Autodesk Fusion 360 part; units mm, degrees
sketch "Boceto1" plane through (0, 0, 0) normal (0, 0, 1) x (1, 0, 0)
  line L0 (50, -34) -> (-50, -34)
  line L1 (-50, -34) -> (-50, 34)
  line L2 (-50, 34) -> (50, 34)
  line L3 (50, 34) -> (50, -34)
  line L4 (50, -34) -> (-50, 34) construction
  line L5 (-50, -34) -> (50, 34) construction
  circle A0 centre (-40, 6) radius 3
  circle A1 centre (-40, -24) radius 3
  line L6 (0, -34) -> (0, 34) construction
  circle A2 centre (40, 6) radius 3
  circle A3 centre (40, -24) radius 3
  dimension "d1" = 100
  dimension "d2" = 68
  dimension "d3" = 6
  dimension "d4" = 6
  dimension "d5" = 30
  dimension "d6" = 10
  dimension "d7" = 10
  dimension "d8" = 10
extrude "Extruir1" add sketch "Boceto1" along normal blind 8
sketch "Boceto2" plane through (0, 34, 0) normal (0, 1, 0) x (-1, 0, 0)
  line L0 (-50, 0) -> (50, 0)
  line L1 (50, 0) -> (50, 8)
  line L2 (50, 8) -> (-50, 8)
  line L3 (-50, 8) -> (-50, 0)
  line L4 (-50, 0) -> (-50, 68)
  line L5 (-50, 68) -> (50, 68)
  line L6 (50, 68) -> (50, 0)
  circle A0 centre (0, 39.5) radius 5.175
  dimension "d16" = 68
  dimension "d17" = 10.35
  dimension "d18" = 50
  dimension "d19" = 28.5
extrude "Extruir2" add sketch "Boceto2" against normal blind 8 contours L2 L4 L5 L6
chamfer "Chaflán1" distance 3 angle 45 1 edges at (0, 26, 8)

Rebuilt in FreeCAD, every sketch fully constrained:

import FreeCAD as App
import Part
import Sketcher


def edges_at(feature, points):
    """Names of the edges that pass closest to the given points."""
    edges = feature.Shape.Edges
    near = lambda p: min(range(len(edges)), key=lambda i: edges[i].distToShape(Part.Vertex(*p))[0])
    return sorted({f"Edge{near(p) + 1}" for p in points})


def add_polygon(sketch, points):
    """Adds a closed chain of lines whose ends are joined by coincident constraints."""
    first, n = sketch.GeometryCount, len(points)
    for a, b in zip(points, points[1:] + points[:1]):
        sketch.addGeometry(Part.LineSegment(App.Vector(*a, 0), App.Vector(*b, 0)), False)
    for i in range(n):
        sketch.addConstraint(Sketcher.Constraint("Coincident", first + i, 2, first + (i + 1) % n, 1))

doc = App.newDocument("Part")
body = doc.addObject("PartDesign::Body", "Body")

sketch1 = body.newObject("Sketcher::SketchObject", "Sketch")
sketch1.AttachmentSupport = (doc.getObject("XY_Plane"), [""])
sketch1.MapMode = "FlatFace"
add_polygon(sketch1, [(-50, -34), (50, -34), (50, 34), (-50, 34)])
sketch1.addGeometry(Part.Circle(App.Vector(-40, -24, 0), App.Vector(0, 0, 1), 3), False)
sketch1.addGeometry(Part.Circle(App.Vector(40, -24, 0), App.Vector(0, 0, 1), 3), False)
sketch1.addGeometry(Part.Circle(App.Vector(-40, 6, 0), App.Vector(0, 0, 1), 3), False)
sketch1.addGeometry(Part.Circle(App.Vector(40, 6, 0), App.Vector(0, 0, 1), 3), False)
sketch1.addConstraint(Sketcher.Constraint("Horizontal", 0))
sketch1.addConstraint(Sketcher.Constraint("Vertical", 1))
sketch1.addConstraint(Sketcher.Constraint("Horizontal", 2))
sketch1.addConstraint(Sketcher.Constraint("Vertical", 3))
sketch1.addConstraint(Sketcher.Constraint("Equal", 4, 5))
sketch1.addConstraint(Sketcher.Constraint("Equal", 5, 6))
sketch1.addConstraint(Sketcher.Constraint("Equal", 6, 7))
sketch1.addConstraint(Sketcher.Constraint("Symmetric", 0, 2, 2, 2, -1, 1))
sketch1.addConstraint(Sketcher.Constraint("Symmetric", 4, 3, 5, 3, -2))
sketch1.addConstraint(Sketcher.Constraint("Symmetric", 6, 3, 7, 3, -2))
sketch1.addConstraint(Sketcher.Constraint("Vertical", 4, 3, 6, 3))
sketch1.addConstraint(Sketcher.Constraint("Diameter", 4, 6.0))
sketch1.addConstraint(Sketcher.Constraint("DistanceX", 0, 1, 0, 2, 100.0))
sketch1.addConstraint(Sketcher.Constraint("DistanceY", 1, 1, 1, 2, 68.0))
sketch1.addConstraint(Sketcher.Constraint("DistanceY", -1, 1, 6, 3, 6.0))
sketch1.addConstraint(Sketcher.Constraint("DistanceY", 4, 3, 6, 3, 30.0))
sketch1.addConstraint(Sketcher.Constraint("DistanceX", 5, 3, 0, 2, 10.0))
pad1 = body.newObject("PartDesign::Pad", "Pad")
pad1.Profile = sketch1
pad1.Length = 8

sketch2 = body.newObject("Sketcher::SketchObject", "Sketch001")
sketch2.AttachmentSupport = (doc.getObject("XZ_Plane"), [""])
sketch2.MapMode = "FlatFace"
sketch2.AttachmentOffset = App.Placement(App.Vector(0, 0, -34), App.Rotation())
add_polygon(sketch2, [(50, 68), (50, 8), (-50, 8), (-50, 68)])
sketch2.addGeometry(Part.Circle(App.Vector(0, 39.5, 0), App.Vector(0, 0, 1), 5.175), False)
sketch2.addConstraint(Sketcher.Constraint("Vertical", 0))
sketch2.addConstraint(Sketcher.Constraint("Horizontal", 1))
sketch2.addConstraint(Sketcher.Constraint("Vertical", 2))
sketch2.addConstraint(Sketcher.Constraint("Horizontal", 3))
sketch2.addConstraint(Sketcher.Constraint("PointOnObject", 4, 3, -2))
sketch2.addConstraint(Sketcher.Constraint("Diameter", 4, 10.35))
sketch2.addConstraint(Sketcher.Constraint("DistanceX", -1, 1, 0, 2, 50.0))
sketch2.addConstraint(Sketcher.Constraint("DistanceX", 1, 2, -1, 1, 50.0))
sketch2.addConstraint(Sketcher.Constraint("DistanceY", -1, 1, 2, 2, 68.0))
sketch2.addConstraint(Sketcher.Constraint("DistanceY", 4, 3, 2, 2, 28.5))
sketch2.addConstraint(Sketcher.Constraint("DistanceY", 0, 2, 0, 1, 60.0))
pad2 = body.newObject("PartDesign::Pad", "Pad001")
pad2.Profile = sketch2
pad2.Length = 8
doc.recompute()

chamfer = body.newObject("PartDesign::Chamfer", "Chamfer")
chamfer.Base = (pad2, edges_at(pad2, [(0, 26, 8)]))
chamfer.Size = 3

doc.recompute()
